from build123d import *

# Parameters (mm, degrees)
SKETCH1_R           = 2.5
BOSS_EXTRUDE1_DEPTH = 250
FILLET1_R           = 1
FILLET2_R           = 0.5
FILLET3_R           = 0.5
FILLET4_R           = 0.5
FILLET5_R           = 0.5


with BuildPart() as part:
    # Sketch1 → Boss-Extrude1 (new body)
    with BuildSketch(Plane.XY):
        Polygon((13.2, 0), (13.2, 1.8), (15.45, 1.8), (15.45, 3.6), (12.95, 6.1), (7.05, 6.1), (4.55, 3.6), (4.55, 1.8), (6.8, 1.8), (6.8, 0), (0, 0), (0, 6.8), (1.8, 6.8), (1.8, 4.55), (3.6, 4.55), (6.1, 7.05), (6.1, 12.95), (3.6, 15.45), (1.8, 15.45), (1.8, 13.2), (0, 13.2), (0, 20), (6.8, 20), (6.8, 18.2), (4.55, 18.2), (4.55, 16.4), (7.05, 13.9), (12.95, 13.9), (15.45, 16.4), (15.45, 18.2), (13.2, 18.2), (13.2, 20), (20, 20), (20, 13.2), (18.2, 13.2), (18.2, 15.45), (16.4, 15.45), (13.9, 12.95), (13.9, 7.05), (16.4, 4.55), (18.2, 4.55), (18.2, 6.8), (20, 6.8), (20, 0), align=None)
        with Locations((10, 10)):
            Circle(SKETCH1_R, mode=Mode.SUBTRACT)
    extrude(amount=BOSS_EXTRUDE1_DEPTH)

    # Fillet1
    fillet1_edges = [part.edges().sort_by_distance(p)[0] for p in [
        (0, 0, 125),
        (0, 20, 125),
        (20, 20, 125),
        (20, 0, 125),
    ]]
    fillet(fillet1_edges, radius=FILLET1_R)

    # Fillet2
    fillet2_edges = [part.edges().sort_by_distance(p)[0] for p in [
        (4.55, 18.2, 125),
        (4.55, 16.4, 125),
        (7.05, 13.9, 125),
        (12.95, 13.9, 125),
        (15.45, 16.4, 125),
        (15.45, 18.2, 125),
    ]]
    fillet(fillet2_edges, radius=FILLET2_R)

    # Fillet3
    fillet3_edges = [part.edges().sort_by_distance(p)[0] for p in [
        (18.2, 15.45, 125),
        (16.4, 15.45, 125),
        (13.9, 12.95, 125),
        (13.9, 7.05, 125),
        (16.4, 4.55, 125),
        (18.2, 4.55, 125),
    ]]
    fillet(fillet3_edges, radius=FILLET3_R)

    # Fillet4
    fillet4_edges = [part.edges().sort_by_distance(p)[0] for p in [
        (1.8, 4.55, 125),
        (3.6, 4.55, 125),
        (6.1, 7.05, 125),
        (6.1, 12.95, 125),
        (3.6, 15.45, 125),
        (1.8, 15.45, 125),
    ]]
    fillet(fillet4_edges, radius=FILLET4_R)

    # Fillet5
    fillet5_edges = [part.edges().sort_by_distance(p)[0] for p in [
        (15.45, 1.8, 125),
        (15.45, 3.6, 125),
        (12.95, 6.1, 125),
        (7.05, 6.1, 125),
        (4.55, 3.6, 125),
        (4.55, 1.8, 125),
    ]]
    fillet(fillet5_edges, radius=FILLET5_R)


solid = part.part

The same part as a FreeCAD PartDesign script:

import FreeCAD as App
import Part
import Sketcher

V = App.Vector


def edges_at(feature, points):
    """Names of the edges that pass closest to the given points."""
    edges = feature.Shape.Edges
    near = lambda p: min(range(len(edges)), key=lambda i: edges[i].distToShape(Part.Vertex(*p))[0])
    return sorted({f"Edge{near(p) + 1}" for p in points})


def add_polygon(sketch, points):
    """Adds a closed chain of lines whose ends are joined by coincident constraints."""
    first, n = sketch.GeometryCount, len(points)
    for a, b in zip(points, points[1:] + points[:1]):
        sketch.addGeometry(Part.LineSegment(App.Vector(*a, 0), App.Vector(*b, 0)), False)
    for i in range(n):
        sketch.addConstraint(Sketcher.Constraint("Coincident", first + i, 2, first + (i + 1) % n, 1))

doc = App.newDocument("Part")
body = doc.addObject("PartDesign::Body", "Body")

# Sketch on XY plane
sketch1 = body.newObject("Sketcher::SketchObject", "Sketch")
sketch1.AttachmentSupport = (doc.getObject("XY_Plane"), [""])
sketch1.MapMode = "FlatFace"
add_polygon(sketch1, [(13.2, 1.8), (13.2, 0), (20, 0), (20, 6.8), (18.2, 6.8), (18.2, 4.5), (16.4, 4.5), (13.9, 7), (13.9, 12.9), (16.4, 15.4), (18.2, 15.4), (18.2, 13.2), (20, 13.2), (20, 20), (13.2, 20), (13.2, 18.2), (15.4, 18.2), (15.4, 16.4), (12.9, 13.9), (7, 13.9), (4.5, 16.4), (4.5, 18.2), (6.8, 18.2), (6.8, 20), (0, 20), (0, 13.2), (1.8, 13.2), (1.8, 15.4), (3.6, 15.4), (6.1, 12.9), (6.1, 7), (3.6, 4.5), (1.8, 4.5), (1.8, 6.8), (0, 6.8), (0, 0), (6.8, 0), (6.8, 1.8), (4.5, 1.8), (4.5, 3.6), (7, 6.1), (12.9, 6.1), (15.4, 3.6), (15.4, 1.8)])  # lines 0-43
sketch1.addGeometry(Part.Circle(V(10, 10, 0), V(0, 0, 1), 2.5), False)  # 44
sketch1.addConstraint([
    Sketcher.Constraint("Vertical", 0),
    Sketcher.Constraint("Horizontal", 1),
    Sketcher.Constraint("Vertical", 2),
    Sketcher.Constraint("Horizontal", 3),
    Sketcher.Constraint("Vertical", 4),
    Sketcher.Constraint("Horizontal", 5),
    Sketcher.Constraint("Vertical", 7),
    Sketcher.Constraint("Horizontal", 9),
    Sketcher.Constraint("Vertical", 10),
    Sketcher.Constraint("Horizontal", 11),
    Sketcher.Constraint("Vertical", 12),
    Sketcher.Constraint("Horizontal", 13),
    Sketcher.Constraint("Vertical", 14),
    Sketcher.Constraint("Horizontal", 15),
    Sketcher.Constraint("Vertical", 16),
    Sketcher.Constraint("Horizontal", 18),
    Sketcher.Constraint("Vertical", 20),
    Sketcher.Constraint("Horizontal", 21),
    Sketcher.Constraint("Vertical", 22),
    Sketcher.Constraint("Horizontal", 23),
    Sketcher.Constraint("Vertical", 24),
    Sketcher.Constraint("Horizontal", 25),
    Sketcher.Constraint("Vertical", 26),
    Sketcher.Constraint("Horizontal", 27),
    Sketcher.Constraint("Vertical", 29),
    Sketcher.Constraint("Horizontal", 31),
    Sketcher.Constraint("Vertical", 32),
    Sketcher.Constraint("Horizontal", 33),
    Sketcher.Constraint("Vertical", 34),
    Sketcher.Constraint("Horizontal", 35),
    Sketcher.Constraint("Vertical", 36),
    Sketcher.Constraint("Horizontal", 37),
    Sketcher.Constraint("Vertical", 38),
    Sketcher.Constraint("Horizontal", 40),
    Sketcher.Constraint("Vertical", 42),
    Sketcher.Constraint("Horizontal", 43),
    Sketcher.Constraint("Coincident", 34, 2, -1, 1),
    Sketcher.Constraint("PointOnObject", 0, 2, -1),
    Sketcher.Constraint("PointOnObject", 23, 2, -2),
    Sketcher.Constraint("Perpendicular", 6, 8),
    Sketcher.Constraint("Parallel", 8, 17),
    Sketcher.Constraint("Perpendicular", 17, 19),
    Sketcher.Constraint("Parallel", 19, 28),
    Sketcher.Constraint("Perpendicular", 28, 30),
    Sketcher.Constraint("Parallel", 30, 39),
    Sketcher.Constraint("Perpendicular", 39, 41),
    Sketcher.Constraint("Horizontal", 16, 2, 19, 2),
    Sketcher.Constraint("Horizontal", 15, 2, 20, 2),
    Sketcher.Constraint("Horizontal", 13, 2, 22, 2),
    Sketcher.Constraint("Horizontal", 11, 2, 24, 2),
    Sketcher.Constraint("Horizontal", 9, 2, 26, 2),
    Sketcher.Constraint("Horizontal", 7, 2, 28, 2),
    Sketcher.Constraint("Horizontal", 6, 2, 29, 2),
    Sketcher.Constraint("Horizontal", 5, 2, 30, 2),
    Sketcher.Constraint("Horizontal", 3, 2, 32, 2),
    Sketcher.Constraint("Horizontal", 38, 2, 41, 2),
    Sketcher.Constraint("Horizontal", 37, 2, 42, 2),
    Sketcher.Constraint("Vertical", 5, 2, 8, 2),
    Sketcher.Constraint("Vertical", 4, 2, 9, 2),
    Sketcher.Constraint("Vertical", 2, 2, 11, 2),
    Sketcher.Constraint("Vertical", 0, 2, 13, 2),
    Sketcher.Constraint("Vertical", 27, 2, 30, 2),
    Sketcher.Constraint("Vertical", 26, 2, 31, 2),
    Sketcher.Constraint("Vertical", 22, 2, 35, 2),
    Sketcher.Constraint("Vertical", 20, 2, 37, 2),
    Sketcher.Constraint("Vertical", 18, 2, 39, 2),
    Sketcher.Constraint("Vertical", 17, 2, 40, 2),
    Sketcher.Constraint("Equal", 3, 5),
    Sketcher.Constraint("Equal", 15, 21),
    Sketcher.Constraint("Equal", 13, 23),
    Sketcher.Constraint("Equal", 11, 25),
    Sketcher.Constraint("Equal", 25, 27),
    Sketcher.Constraint("Equal", 33, 0),
    Sketcher.Constraint("Equal", 35, 2),
    Sketcher.Constraint("Equal", 43, 4),
    Sketcher.Constraint("Equal", 40, 7),
    Sketcher.Constraint("Equal", 4, 10),
    Sketcher.Constraint("Equal", 2, 12),
    Sketcher.Constraint("Equal", 0, 14),
    Sketcher.Constraint("Equal", 14, 16),
    Sketcher.Constraint("Equal", 36, 38),
    Sketcher.Constraint("Equal", 8, 17),
    Sketcher.Constraint("Diameter", 44, 5.0),
    Sketcher.Constraint("DistanceX", 1, 1, 1, 2, 6.8),
    Sketcher.Constraint("DistanceX", 3, 2, 3, 1, 1.8),
    Sketcher.Constraint("DistanceX", 18, 2, 18, 1, 5.9),
    Sketcher.Constraint("DistanceX", -1, 1, 44, 3, 10.0),
    Sketcher.Constraint("DistanceY", -1, 1, 44, 3, 10.0),
    Sketcher.Constraint("DistanceX", -1, 1, 1, 2, 20.0),
    Sketcher.Constraint("DistanceX", 15, 1, 15, 2, 2.25),
])
pad1 = body.newObject("PartDesign::Pad", "Pad")
pad1.Profile = sketch1
pad1.Length = 250
doc.recompute()

fillet = body.newObject("PartDesign::Fillet", "Fillet")
fillet.Base = (pad1, edges_at(pad1, [
    (0, 0, 125),
    (0, 20, 125),
    (20, 20, 125),
    (20, 0, 125),
]))
fillet.Radius = 1
doc.recompute()

fillet2 = body.newObject("PartDesign::Fillet", "Fillet001")
fillet2.Base = (fillet, edges_at(fillet, [
    (4.55, 18.2, 125),
    (4.55, 16.4, 125),
    (7.05, 13.9, 125),
    (12.95, 13.9, 125),
    (15.45, 16.4, 125),
    (15.45, 18.2, 125),
]))
fillet2.Radius = 0.5
doc.recompute()

fillet3 = body.newObject("PartDesign::Fillet", "Fillet002")
fillet3.Base = (fillet2, edges_at(fillet2, [
    (18.2, 15.45, 125),
    (16.4, 15.45, 125),
    (13.9, 12.95, 125),
    (13.9, 7.05, 125),
    (16.4, 4.55, 125),
    (18.2, 4.55, 125),
]))
fillet3.Radius = 0.5
doc.recompute()

fillet4 = body.newObject("PartDesign::Fillet", "Fillet003")
fillet4.Base = (fillet3, edges_at(fillet3, [
    (1.8, 4.55, 125),
    (3.6, 4.55, 125),
    (6.1, 7.05, 125),
    (6.1, 12.95, 125),
    (3.6, 15.45, 125),
    (1.8, 15.45, 125),
]))
fillet4.Radius = 0.5
doc.recompute()

fillet5 = body.newObject("PartDesign::Fillet", "Fillet004")
fillet5.Base = (fillet4, edges_at(fillet4, [
    (15.45, 1.8, 125),
    (15.45, 3.6, 125),
    (12.95, 6.1, 125),
    (7.05, 6.1, 125),
    (4.55, 3.6, 125),
    (4.55, 1.8, 125),
]))
fillet5.Radius = 0.5

doc.recompute()
